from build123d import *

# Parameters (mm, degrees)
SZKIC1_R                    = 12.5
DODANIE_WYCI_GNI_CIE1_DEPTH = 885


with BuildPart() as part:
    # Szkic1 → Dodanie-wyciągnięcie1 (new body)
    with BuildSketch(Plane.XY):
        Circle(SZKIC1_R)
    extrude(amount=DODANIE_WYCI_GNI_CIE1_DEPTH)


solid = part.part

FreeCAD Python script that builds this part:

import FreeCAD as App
import Part
import Sketcher

V = App.Vector
Q = App.Units.Quantity

doc = App.newDocument("Part")
body = doc.addObject("PartDesign::Body", "Body")

sketch1 = body.newObject("Sketcher::SketchObject", "Sketch")
sketch1.AttachmentSupport = (doc.getObject("XY_Plane"), [""])
sketch1.MapMode = "FlatFace"
sketch1.addGeometry(Part.Circle(V(0, 0, 0), V(0, 0, 1), 12.5), False)
sketch1.addConstraint(Sketcher.Constraint("Coincident", 0, 3, -1, 1))
sketch1.addConstraint(Sketcher.Constraint("Diameter", 0, Q("25 mm")))
pad1 = body.newObject("PartDesign::Pad", "Pad")
pad1.Profile = sketch1
pad1.Length = 885

doc.recompute()
